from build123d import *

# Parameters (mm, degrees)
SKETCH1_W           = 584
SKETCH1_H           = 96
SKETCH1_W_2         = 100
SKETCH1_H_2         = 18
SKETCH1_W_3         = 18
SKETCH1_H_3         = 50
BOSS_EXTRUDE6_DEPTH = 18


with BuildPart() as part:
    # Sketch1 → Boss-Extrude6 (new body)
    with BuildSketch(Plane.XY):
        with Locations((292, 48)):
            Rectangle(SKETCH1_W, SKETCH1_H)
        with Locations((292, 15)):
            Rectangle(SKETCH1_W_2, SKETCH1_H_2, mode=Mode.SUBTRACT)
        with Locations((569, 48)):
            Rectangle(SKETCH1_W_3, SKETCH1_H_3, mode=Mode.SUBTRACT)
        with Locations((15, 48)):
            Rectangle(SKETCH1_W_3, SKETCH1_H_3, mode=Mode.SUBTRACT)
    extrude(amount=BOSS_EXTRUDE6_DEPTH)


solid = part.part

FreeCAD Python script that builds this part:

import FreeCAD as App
import Part
import Sketcher
Q = App.Units.Quantity

doc = App.newDocument("Part")
body = doc.addObject("PartDesign::Body", "Body")

sketch1 = body.newObject("Sketcher::SketchObject", "Sketch")
sketch1.AttachmentSupport = (doc.getObject("XY_Plane"), [""])
sketch1.MapMode = "FlatFace"
sketch1.addGeometry([
    Part.LineSegment(App.Vector(0, 96, 0), App.Vector(0, 0, 0)),
    Part.LineSegment(App.Vector(0, 0, 0), App.Vector(584, 0, 0)),
    Part.LineSegment(App.Vector(584, 0, 0), App.Vector(584, 96, 0)),
    Part.LineSegment(App.Vector(584, 96, 0), App.Vector(0, 96, 0)),
    Part.LineSegment(App.Vector(342, 6, 0), App.Vector(242, 6, 0)),
    Part.LineSegment(App.Vector(242, 6, 0), App.Vector(242, 24, 0)),
    Part.LineSegment(App.Vector(242, 24, 0), App.Vector(342, 24, 0)),
    Part.LineSegment(App.Vector(342, 24, 0), App.Vector(342, 6, 0)),
    Part.LineSegment(App.Vector(24, 23, 0), App.Vector(6, 23, 0)),
    Part.LineSegment(App.Vector(6, 23, 0), App.Vector(6, 73, 0)),
    Part.LineSegment(App.Vector(6, 73, 0), App.Vector(24, 73, 0)),
    Part.LineSegment(App.Vector(24, 73, 0), App.Vector(24, 23, 0)),
    Part.LineSegment(App.Vector(578, 23, 0), App.Vector(560, 23, 0)),
    Part.LineSegment(App.Vector(560, 23, 0), App.Vector(560, 73, 0)),
    Part.LineSegment(App.Vector(560, 73, 0), App.Vector(578, 73, 0)),
    Part.LineSegment(App.Vector(578, 73, 0), App.Vector(578, 23, 0)),
], False)
sketch1.addConstraint([
    Sketcher.Constraint("Coincident", 0, 2, 1, 1),
    Sketcher.Constraint("Coincident", 1, 2, 2, 1),
    Sketcher.Constraint("Coincident", 2, 2, 3, 1),
    Sketcher.Constraint("Coincident", 3, 2, 0, 1),
    Sketcher.Constraint("Coincident", 4, 2, 5, 1),
    Sketcher.Constraint("Coincident", 5, 2, 6, 1),
    Sketcher.Constraint("Coincident", 6, 2, 7, 1),
    Sketcher.Constraint("Coincident", 7, 2, 4, 1),
    Sketcher.Constraint("Coincident", 8, 2, 9, 1),
    Sketcher.Constraint("Coincident", 9, 2, 10, 1),
    Sketcher.Constraint("Coincident", 10, 2, 11, 1),
    Sketcher.Constraint("Coincident", 11, 2, 8, 1),
    Sketcher.Constraint("Coincident", 12, 2, 13, 1),
    Sketcher.Constraint("Coincident", 13, 2, 14, 1),
    Sketcher.Constraint("Coincident", 14, 2, 15, 1),
    Sketcher.Constraint("Coincident", 15, 2, 12, 1),
    Sketcher.Constraint("Vertical", 0),
    Sketcher.Constraint("Horizontal", 1),
    Sketcher.Constraint("Vertical", 2),
    Sketcher.Constraint("Horizontal", 3),
    Sketcher.Constraint("Horizontal", 4),
    Sketcher.Constraint("Vertical", 5),
    Sketcher.Constraint("Horizontal", 6),
    Sketcher.Constraint("Vertical", 7),
    Sketcher.Constraint("Horizontal", 8),
    Sketcher.Constraint("Vertical", 9),
    Sketcher.Constraint("Horizontal", 10),
    Sketcher.Constraint("Vertical", 11),
    Sketcher.Constraint("Horizontal", 12),
    Sketcher.Constraint("Vertical", 13),
    Sketcher.Constraint("Horizontal", 14),
    Sketcher.Constraint("Vertical", 15),
    Sketcher.Constraint("Coincident", 0, 2, -1, 1),
    Sketcher.Constraint("Horizontal", 11, 2, 12, 2),
    Sketcher.Constraint("Horizontal", 10, 2, 13, 2),
    Sketcher.Constraint("Equal", 10, 12),
    Sketcher.Constraint("Equal", 14, 5),
    Sketcher.Constraint("DistanceX", 1, 1, 1, 2, Q("584 mm")),
    Sketcher.Constraint("DistanceX", 4, 2, 4, 1, Q("100 mm")),
    Sketcher.Constraint("DistanceX", 8, 2, 8, 1, Q("18 mm")),
    Sketcher.Constraint("DistanceY", 0, 2, 0, 1, Q("96 mm")),
    Sketcher.Constraint("DistanceY", 9, 1, 9, 2, Q("50 mm")),
    Sketcher.Constraint("DistanceX", -1, 1, 4, 2, Q("242 mm")),
    Sketcher.Constraint("DistanceY", -1, 1, 4, 2, Q("6 mm")),
    Sketcher.Constraint("DistanceX", -1, 1, 8, 2, Q("6 mm")),
    Sketcher.Constraint("DistanceY", -1, 1, 8, 2, Q("23 mm")),
    Sketcher.Constraint("DistanceX", -1, 1, 12, 2, Q("560 mm")),
])
pad1 = body.newObject("PartDesign::Pad", "Pad")
pad1.Profile = sketch1
pad1.Length = 18

doc.recompute()
